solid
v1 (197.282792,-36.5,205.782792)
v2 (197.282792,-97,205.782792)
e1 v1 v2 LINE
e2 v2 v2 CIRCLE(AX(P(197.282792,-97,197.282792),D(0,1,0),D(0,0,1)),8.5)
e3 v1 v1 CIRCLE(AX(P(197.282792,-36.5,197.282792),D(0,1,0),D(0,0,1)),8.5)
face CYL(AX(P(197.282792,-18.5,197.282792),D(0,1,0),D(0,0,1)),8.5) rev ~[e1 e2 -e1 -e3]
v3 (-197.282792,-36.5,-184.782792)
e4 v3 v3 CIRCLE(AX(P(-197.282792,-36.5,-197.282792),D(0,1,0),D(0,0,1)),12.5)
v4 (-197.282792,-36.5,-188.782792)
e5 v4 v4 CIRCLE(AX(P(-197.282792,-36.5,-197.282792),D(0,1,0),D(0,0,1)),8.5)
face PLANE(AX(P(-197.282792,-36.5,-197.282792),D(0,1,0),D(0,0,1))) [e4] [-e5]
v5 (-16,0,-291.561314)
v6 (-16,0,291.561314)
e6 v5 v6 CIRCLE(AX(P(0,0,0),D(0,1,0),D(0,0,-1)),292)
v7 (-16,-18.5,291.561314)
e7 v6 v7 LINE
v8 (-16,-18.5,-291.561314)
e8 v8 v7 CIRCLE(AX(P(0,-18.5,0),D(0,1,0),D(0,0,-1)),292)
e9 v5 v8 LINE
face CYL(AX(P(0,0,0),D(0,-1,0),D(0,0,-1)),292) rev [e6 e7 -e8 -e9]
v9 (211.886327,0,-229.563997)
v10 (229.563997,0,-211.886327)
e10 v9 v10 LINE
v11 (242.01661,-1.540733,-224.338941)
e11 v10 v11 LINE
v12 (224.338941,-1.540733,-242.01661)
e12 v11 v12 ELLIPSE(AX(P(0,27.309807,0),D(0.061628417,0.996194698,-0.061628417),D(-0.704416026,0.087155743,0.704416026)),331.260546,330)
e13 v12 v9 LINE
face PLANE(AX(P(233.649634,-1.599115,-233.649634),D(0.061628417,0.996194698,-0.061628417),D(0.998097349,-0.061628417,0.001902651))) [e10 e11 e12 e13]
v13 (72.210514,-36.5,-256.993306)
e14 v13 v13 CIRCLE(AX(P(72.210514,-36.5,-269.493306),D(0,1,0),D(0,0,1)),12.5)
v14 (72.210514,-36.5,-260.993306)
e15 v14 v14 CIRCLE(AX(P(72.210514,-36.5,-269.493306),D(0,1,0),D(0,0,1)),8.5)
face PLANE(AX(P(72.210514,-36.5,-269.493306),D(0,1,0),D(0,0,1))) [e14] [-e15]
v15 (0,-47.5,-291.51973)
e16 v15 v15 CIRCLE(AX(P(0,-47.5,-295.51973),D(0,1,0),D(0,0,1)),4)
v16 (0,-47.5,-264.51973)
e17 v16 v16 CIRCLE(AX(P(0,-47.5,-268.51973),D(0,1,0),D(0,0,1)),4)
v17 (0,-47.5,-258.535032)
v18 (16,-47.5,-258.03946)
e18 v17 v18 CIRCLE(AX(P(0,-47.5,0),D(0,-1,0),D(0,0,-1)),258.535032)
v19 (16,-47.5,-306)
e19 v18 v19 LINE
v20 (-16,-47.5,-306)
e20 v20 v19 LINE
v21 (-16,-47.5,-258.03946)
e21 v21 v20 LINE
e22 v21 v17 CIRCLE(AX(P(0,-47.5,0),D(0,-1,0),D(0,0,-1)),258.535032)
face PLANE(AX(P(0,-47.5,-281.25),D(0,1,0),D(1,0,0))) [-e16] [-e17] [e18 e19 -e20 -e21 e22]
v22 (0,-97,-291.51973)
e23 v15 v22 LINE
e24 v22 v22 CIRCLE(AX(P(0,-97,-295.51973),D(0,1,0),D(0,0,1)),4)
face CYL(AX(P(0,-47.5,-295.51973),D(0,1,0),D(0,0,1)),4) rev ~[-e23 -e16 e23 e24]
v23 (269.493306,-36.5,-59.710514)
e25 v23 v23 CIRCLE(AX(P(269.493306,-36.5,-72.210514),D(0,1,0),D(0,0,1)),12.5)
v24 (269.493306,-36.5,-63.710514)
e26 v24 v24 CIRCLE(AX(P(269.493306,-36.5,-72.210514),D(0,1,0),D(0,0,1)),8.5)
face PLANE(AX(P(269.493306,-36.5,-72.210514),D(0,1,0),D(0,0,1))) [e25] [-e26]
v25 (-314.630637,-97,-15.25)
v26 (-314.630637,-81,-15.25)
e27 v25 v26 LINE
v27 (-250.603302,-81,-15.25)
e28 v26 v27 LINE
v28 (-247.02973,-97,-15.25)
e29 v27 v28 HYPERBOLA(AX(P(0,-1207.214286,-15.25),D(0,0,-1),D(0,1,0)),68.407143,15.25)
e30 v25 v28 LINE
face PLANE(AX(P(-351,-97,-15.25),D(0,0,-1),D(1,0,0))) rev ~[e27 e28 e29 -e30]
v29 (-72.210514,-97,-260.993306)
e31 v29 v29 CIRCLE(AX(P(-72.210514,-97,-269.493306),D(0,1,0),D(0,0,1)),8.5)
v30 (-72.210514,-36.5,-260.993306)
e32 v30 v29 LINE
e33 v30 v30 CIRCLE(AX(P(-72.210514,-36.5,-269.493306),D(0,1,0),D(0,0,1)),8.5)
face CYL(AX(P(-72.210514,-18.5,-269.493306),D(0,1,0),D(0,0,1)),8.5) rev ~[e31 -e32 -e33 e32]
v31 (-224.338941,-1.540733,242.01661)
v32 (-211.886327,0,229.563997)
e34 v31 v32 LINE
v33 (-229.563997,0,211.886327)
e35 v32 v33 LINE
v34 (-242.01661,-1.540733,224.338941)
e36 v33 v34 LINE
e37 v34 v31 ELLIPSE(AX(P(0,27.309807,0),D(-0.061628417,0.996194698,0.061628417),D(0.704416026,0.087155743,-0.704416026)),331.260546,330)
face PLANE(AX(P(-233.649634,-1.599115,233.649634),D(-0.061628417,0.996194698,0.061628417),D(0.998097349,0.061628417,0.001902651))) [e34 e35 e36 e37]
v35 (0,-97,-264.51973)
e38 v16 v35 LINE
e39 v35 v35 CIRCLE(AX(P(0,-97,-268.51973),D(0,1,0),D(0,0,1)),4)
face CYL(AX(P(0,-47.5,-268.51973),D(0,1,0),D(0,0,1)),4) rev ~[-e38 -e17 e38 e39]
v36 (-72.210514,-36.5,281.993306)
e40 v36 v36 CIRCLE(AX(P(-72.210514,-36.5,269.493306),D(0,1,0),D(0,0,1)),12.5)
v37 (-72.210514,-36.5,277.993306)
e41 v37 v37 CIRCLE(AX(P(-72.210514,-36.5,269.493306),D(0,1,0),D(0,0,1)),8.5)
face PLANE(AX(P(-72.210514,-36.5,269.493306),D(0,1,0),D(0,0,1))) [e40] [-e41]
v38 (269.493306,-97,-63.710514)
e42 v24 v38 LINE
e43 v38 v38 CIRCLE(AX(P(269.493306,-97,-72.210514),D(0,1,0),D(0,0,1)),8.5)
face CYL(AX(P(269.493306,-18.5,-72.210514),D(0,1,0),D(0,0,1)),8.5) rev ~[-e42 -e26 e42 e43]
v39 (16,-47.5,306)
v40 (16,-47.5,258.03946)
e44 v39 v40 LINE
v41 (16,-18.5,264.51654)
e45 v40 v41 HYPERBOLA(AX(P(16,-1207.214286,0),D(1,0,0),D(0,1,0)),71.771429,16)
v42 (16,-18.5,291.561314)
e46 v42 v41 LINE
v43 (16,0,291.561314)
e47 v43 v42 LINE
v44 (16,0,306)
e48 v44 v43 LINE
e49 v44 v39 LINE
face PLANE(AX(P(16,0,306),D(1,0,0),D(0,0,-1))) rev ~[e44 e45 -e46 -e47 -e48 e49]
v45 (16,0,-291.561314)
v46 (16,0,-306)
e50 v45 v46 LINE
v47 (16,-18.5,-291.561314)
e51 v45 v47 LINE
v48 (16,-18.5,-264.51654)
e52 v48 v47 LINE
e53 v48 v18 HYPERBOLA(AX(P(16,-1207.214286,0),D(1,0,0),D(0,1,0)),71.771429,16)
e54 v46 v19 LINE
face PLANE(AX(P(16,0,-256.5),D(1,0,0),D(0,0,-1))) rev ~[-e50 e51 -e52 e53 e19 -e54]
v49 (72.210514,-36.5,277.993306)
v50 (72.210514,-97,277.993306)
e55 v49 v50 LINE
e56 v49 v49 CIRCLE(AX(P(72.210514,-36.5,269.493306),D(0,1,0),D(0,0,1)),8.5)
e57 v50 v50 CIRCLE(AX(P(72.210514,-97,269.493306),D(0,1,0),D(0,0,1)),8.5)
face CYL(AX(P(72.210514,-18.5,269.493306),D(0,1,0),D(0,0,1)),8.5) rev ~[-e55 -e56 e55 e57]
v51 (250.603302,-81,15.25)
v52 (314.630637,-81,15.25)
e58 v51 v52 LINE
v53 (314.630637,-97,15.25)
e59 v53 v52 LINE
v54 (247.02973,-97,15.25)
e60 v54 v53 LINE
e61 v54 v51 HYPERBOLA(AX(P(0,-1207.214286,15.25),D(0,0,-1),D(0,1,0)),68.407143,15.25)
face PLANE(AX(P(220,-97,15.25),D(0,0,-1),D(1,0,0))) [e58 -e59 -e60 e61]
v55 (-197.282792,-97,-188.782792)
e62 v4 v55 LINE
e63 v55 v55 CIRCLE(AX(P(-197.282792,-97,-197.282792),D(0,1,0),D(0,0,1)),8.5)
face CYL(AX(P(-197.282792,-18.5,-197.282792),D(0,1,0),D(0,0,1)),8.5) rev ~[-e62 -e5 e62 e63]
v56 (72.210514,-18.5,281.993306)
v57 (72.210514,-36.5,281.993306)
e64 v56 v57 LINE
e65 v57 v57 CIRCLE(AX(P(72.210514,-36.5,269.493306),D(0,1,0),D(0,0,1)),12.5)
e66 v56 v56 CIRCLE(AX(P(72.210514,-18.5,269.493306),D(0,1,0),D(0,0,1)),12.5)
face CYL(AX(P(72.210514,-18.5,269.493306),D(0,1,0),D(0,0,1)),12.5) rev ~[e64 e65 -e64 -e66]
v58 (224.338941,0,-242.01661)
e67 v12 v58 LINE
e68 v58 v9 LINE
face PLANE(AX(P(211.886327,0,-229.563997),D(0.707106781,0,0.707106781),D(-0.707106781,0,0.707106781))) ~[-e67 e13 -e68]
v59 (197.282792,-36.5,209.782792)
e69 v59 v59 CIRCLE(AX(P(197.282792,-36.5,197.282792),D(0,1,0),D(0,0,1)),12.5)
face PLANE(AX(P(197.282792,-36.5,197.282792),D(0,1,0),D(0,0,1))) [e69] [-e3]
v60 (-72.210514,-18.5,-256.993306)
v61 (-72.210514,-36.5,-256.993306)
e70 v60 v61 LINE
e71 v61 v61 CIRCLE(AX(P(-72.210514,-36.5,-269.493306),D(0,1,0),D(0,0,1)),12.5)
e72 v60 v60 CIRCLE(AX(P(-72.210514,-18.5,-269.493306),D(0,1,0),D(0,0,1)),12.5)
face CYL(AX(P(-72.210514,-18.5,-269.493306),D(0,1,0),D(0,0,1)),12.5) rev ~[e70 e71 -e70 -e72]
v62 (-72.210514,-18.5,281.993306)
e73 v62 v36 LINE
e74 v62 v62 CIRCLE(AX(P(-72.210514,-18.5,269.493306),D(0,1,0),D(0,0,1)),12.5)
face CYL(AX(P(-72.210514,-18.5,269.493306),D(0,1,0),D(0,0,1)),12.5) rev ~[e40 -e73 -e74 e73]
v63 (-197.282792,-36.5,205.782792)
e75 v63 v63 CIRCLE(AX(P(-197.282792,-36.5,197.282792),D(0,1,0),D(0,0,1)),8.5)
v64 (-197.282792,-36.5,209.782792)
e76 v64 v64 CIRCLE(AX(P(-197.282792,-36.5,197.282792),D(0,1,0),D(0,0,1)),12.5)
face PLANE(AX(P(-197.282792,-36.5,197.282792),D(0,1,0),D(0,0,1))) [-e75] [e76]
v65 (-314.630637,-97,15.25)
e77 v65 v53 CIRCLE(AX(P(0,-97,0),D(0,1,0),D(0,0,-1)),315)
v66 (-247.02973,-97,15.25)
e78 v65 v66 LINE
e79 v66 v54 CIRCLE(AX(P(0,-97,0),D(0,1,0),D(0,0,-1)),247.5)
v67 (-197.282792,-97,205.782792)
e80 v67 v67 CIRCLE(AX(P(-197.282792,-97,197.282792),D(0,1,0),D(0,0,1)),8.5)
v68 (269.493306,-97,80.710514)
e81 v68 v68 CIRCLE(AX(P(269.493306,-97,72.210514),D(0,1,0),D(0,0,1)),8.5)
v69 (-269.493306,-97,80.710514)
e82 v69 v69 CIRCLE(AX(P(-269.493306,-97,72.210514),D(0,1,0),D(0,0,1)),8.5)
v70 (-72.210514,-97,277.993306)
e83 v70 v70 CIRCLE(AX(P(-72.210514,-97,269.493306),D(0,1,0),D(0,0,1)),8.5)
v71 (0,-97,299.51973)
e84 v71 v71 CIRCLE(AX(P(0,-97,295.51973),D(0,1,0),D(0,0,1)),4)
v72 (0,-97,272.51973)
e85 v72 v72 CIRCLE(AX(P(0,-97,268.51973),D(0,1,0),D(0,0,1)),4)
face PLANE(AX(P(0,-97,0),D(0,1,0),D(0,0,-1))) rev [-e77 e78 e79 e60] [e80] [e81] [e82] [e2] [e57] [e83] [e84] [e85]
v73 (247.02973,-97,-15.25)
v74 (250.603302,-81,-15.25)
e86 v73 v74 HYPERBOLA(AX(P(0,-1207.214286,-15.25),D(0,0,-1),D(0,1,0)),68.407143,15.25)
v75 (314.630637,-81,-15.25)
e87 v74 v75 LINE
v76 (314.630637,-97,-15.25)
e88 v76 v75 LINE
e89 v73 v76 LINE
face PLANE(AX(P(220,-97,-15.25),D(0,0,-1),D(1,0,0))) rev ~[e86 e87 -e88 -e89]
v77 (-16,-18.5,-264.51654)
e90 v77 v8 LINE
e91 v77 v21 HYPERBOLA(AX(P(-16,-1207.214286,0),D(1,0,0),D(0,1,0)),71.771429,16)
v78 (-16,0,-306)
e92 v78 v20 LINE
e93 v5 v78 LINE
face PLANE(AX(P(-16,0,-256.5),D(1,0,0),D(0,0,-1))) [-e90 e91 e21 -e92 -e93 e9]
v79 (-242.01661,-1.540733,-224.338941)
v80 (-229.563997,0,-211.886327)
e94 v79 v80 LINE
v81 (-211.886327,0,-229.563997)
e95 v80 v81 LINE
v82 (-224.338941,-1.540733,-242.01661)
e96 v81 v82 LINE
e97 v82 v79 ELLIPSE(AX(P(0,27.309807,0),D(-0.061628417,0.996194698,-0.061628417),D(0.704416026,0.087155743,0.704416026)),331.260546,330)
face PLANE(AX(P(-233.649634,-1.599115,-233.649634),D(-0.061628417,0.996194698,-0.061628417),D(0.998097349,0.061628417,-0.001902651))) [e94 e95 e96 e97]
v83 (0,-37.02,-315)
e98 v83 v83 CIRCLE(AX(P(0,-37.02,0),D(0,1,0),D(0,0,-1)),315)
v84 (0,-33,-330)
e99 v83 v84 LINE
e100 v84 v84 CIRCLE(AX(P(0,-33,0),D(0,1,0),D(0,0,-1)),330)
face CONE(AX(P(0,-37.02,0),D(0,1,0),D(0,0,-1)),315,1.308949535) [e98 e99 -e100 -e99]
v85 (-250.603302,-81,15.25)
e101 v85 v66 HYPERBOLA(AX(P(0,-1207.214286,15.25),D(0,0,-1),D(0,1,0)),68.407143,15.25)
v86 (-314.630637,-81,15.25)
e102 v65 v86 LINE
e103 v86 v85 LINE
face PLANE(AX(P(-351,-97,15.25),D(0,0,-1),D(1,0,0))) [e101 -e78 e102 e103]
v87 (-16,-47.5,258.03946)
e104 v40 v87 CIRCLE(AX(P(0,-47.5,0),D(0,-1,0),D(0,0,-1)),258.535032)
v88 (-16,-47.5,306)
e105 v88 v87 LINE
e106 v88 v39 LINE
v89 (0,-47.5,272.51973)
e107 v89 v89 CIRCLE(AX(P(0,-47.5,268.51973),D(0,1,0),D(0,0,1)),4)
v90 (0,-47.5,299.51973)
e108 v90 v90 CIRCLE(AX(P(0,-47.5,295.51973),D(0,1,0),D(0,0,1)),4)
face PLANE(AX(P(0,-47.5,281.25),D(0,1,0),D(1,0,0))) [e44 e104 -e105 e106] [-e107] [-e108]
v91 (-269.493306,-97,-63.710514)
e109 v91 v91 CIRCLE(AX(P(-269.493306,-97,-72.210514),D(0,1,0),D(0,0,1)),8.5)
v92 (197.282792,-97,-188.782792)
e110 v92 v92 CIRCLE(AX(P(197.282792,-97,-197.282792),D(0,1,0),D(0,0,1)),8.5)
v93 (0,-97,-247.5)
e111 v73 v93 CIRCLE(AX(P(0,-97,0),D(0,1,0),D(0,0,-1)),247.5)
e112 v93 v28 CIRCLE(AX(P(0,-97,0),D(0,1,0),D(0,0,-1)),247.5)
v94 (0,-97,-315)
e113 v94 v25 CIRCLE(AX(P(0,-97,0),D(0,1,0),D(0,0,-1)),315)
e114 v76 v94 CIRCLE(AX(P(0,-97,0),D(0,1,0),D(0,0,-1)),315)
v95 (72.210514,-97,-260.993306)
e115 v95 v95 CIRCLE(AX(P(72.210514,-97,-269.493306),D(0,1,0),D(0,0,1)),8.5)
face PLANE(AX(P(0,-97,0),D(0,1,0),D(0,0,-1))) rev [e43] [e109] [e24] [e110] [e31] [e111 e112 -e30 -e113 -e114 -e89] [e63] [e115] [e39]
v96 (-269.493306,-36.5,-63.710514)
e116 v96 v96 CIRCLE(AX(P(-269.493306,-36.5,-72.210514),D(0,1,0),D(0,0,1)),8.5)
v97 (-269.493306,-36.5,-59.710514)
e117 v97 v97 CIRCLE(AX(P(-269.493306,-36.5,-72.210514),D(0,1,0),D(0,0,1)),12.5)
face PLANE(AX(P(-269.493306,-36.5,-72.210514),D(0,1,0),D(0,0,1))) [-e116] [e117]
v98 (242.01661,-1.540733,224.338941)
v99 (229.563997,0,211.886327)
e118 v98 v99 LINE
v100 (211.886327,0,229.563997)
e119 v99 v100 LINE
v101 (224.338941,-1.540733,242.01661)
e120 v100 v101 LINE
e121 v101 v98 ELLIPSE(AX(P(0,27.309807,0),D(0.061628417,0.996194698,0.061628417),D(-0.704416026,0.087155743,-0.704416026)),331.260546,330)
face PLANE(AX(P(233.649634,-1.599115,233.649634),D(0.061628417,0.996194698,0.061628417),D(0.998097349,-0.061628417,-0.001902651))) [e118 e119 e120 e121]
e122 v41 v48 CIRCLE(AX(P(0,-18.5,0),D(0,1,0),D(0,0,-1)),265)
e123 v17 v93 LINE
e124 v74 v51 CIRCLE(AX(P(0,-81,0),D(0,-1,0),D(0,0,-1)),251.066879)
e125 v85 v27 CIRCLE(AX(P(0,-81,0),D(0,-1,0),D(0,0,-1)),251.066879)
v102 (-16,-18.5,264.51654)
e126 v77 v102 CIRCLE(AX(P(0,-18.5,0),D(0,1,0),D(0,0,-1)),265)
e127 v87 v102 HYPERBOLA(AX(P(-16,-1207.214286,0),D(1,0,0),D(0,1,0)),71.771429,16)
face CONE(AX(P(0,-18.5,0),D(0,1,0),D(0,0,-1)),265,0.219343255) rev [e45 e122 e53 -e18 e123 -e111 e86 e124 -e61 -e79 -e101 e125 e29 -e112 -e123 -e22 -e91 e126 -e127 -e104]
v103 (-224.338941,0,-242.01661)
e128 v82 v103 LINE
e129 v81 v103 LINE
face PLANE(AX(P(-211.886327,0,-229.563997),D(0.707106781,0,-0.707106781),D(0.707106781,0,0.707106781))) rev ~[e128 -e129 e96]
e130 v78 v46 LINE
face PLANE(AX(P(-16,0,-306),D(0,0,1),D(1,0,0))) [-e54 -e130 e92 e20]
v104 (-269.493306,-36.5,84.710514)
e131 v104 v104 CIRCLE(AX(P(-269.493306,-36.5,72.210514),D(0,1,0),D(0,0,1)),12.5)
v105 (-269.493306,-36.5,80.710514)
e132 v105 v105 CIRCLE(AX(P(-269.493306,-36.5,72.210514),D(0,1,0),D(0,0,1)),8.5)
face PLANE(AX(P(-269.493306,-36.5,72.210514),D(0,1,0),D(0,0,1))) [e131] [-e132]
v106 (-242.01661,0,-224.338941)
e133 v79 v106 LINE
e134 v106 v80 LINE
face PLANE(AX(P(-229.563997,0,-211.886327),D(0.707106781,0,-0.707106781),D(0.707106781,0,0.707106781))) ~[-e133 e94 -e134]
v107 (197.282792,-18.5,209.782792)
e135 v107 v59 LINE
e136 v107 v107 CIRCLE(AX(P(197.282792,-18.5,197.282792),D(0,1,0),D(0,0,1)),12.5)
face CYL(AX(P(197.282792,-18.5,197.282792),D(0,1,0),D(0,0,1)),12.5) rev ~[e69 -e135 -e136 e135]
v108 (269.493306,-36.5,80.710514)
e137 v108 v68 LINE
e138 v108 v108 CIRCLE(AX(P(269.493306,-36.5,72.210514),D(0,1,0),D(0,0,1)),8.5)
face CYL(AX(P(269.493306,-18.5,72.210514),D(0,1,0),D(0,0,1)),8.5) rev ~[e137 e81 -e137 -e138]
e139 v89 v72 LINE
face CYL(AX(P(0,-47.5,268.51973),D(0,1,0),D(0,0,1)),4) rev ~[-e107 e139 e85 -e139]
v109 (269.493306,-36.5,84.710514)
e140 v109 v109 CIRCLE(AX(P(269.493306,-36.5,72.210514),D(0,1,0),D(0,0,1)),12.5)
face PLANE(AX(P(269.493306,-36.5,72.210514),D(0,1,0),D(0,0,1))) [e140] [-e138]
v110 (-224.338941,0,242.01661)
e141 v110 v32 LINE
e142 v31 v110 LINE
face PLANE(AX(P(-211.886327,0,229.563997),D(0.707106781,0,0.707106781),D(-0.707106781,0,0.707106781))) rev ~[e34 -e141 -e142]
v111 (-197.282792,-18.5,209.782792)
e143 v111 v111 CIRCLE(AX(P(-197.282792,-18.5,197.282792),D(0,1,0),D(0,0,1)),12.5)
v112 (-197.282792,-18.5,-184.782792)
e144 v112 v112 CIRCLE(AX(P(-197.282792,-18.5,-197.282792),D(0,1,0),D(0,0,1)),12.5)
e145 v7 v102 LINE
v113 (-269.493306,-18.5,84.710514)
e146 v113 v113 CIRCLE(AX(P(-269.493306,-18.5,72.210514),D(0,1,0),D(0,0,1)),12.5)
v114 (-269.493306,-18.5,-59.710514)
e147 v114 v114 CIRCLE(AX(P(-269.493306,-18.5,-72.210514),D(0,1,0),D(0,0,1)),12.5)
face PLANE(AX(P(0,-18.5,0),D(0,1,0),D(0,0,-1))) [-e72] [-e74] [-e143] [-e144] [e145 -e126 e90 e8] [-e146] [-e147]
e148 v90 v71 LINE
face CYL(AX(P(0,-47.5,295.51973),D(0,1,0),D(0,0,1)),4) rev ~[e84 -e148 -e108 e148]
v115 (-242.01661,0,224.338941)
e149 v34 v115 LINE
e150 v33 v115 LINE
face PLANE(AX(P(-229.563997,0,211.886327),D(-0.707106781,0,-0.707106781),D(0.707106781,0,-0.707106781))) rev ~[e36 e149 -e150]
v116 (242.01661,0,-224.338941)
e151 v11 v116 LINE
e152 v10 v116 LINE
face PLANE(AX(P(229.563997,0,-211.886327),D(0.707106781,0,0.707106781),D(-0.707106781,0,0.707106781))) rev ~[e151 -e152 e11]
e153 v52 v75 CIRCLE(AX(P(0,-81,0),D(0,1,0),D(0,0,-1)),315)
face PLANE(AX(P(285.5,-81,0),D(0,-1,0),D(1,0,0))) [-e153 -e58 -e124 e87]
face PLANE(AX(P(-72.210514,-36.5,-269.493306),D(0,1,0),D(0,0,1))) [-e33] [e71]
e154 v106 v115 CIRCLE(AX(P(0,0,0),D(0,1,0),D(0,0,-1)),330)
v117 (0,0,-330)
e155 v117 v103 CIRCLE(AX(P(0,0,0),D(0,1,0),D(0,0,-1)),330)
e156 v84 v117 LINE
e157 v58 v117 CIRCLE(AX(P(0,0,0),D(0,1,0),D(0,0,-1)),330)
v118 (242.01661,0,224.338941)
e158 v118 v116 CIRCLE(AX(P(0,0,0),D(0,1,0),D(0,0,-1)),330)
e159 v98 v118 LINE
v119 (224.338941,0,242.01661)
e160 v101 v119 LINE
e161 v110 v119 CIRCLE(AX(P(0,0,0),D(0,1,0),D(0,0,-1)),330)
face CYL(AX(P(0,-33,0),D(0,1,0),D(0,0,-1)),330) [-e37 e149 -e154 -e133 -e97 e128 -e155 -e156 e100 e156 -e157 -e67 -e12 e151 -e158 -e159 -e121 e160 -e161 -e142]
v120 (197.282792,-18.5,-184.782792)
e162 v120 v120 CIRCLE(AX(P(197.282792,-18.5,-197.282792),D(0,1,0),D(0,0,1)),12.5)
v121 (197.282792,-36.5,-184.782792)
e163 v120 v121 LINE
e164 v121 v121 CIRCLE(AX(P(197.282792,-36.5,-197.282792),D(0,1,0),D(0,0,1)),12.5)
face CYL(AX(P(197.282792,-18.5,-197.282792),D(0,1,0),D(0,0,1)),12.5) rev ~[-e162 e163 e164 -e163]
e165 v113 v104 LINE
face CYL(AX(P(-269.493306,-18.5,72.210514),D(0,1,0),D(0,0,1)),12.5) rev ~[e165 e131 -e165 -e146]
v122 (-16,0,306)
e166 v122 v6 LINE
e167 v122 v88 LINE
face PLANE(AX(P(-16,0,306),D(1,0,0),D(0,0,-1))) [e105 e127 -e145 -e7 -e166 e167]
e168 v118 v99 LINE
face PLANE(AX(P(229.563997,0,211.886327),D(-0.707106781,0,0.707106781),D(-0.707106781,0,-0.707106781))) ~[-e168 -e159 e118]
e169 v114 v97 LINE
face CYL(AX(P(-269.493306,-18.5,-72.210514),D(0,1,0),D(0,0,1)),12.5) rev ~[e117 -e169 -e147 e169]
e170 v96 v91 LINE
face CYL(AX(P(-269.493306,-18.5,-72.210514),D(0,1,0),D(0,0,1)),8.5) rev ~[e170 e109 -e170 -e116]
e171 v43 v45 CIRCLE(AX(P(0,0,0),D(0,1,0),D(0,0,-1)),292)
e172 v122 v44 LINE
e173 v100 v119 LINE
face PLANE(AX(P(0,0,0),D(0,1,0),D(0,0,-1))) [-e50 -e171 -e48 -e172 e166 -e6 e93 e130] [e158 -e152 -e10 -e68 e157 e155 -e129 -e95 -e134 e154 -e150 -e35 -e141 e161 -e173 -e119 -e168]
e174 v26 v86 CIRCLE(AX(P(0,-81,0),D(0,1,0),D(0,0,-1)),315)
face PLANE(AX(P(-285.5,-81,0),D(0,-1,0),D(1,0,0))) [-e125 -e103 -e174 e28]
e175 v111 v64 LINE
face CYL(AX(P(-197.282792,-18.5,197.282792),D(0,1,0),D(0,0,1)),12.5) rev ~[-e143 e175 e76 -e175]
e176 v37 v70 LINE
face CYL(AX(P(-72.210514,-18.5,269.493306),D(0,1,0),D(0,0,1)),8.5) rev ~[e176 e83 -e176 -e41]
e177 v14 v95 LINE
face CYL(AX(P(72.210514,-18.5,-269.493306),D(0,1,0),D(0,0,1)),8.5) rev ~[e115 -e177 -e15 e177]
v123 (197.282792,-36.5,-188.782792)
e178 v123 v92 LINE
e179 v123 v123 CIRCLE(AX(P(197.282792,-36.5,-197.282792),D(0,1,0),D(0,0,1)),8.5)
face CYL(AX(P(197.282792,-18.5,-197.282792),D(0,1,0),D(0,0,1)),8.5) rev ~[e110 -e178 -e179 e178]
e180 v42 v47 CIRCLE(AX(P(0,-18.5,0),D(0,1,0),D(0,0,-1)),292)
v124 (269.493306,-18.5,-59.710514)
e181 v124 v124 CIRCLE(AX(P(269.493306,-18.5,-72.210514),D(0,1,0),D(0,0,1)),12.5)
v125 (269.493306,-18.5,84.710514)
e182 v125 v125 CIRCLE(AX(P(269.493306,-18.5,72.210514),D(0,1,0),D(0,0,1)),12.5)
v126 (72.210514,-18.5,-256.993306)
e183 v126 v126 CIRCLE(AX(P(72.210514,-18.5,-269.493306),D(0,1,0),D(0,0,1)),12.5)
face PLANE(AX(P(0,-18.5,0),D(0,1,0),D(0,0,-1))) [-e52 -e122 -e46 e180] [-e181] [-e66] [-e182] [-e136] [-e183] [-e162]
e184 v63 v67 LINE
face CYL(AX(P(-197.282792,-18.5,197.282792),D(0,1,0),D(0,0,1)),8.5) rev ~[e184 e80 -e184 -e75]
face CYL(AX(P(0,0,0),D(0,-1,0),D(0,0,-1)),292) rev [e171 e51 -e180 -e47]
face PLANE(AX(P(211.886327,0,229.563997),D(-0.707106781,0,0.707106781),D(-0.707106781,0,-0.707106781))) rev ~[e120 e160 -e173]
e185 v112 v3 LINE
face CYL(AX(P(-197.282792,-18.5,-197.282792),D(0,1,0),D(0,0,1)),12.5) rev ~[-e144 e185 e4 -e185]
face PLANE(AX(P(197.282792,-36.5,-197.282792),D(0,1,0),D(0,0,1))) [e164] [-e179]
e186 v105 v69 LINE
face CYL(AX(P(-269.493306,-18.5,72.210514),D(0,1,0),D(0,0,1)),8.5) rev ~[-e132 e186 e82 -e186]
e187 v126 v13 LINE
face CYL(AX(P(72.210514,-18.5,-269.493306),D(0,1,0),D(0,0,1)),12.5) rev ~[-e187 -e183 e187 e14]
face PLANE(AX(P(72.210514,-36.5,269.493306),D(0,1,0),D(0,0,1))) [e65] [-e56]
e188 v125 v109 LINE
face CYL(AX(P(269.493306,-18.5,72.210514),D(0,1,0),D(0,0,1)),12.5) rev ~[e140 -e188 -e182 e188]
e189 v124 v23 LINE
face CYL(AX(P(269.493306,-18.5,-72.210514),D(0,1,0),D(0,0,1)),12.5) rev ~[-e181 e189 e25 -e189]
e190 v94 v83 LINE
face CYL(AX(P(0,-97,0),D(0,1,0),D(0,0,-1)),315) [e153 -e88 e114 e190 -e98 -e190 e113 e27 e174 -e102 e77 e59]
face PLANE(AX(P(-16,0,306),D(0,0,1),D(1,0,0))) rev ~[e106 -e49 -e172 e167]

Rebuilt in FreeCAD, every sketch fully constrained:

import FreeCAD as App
import Part
import Sketcher

V = App.Vector
Q = App.Units.Quantity

doc = App.newDocument("Part")
body = doc.addObject("PartDesign::Body", "Body")

sketch1 = doc.addObject("Sketcher::SketchObject", "Sketch")
body.addObject(sketch1)
sketch1.AttachmentSupport = (doc.XY_Plane, [""])
sketch1.MapMode = "FlatFace"
sketch1.addGeometry([
    Part.LineSegment(V(-292, 0, 0), V(-330, 0, 0)),
    Part.LineSegment(V(-330, 0, 0), V(-330, -33, 0)),
    Part.LineSegment(V(-330, -33, 0), V(-315, -37, 0)),
    Part.LineSegment(V(-315, -37, 0), V(-315, -97, 0)),
    Part.LineSegment(V(-315, -97, 0), V(-248, -97, 0)),
    Part.LineSegment(V(-248, -97, 0), V(-265, -18, 0)),
    Part.LineSegment(V(-265, -18, 0), V(-292, -18, 0)),
    Part.LineSegment(V(-292, -18, 0), V(-292, 0, 0)),
], False)
sketch1.addConstraint([
    Sketcher.Constraint("Coincident", 0, 2, 1, 1),
    Sketcher.Constraint("Coincident", 1, 2, 2, 1),
    Sketcher.Constraint("Coincident", 2, 2, 3, 1),
    Sketcher.Constraint("Coincident", 3, 2, 4, 1),
    Sketcher.Constraint("Coincident", 4, 2, 5, 1),
    Sketcher.Constraint("Coincident", 5, 2, 6, 1),
    Sketcher.Constraint("Coincident", 6, 2, 7, 1),
    Sketcher.Constraint("Coincident", 7, 2, 0, 1),
    Sketcher.Constraint("Horizontal", 0),
    Sketcher.Constraint("Vertical", 1),
    Sketcher.Constraint("Vertical", 3),
    Sketcher.Constraint("Horizontal", 4),
    Sketcher.Constraint("Horizontal", 6),
    Sketcher.Constraint("Vertical", 7),
    Sketcher.Constraint("PointOnObject", 0, 2, -1),
    Sketcher.Constraint("DistanceX", 0, 2, 0, 1, Q("38 mm")),
    Sketcher.Constraint("DistanceX", 6, 2, 6, 1, Q("27 mm")),
    Sketcher.Constraint("DistanceY", 1, 2, 1, 1, Q("33 mm")),
    Sketcher.Constraint("DistanceX", 4, 1, 4, 2, Q("67.5 mm")),
    Sketcher.Constraint("DistanceY", 7, 1, 7, 2, Q("18.5 mm")),
    Sketcher.Constraint("DistanceX", 0, 2, -1, 1, Q("330 mm")),
    Sketcher.Constraint("DistanceX", 2, 2, -1, 1, Q("315 mm")),
    Sketcher.Constraint("DistanceY", 3, 2, -1, 1, Q("97 mm")),
    Sketcher.Constraint("DistanceY", 3, 2, 3, 1, Q("59.98 mm")),
])
revolution = doc.addObject("PartDesign::Revolution", "Revolution")
body.addObject(revolution)
revolution.Profile = sketch1
revolution.ReferenceAxis = (sketch1, ["V_Axis"])
revolution.Angle = 360

sketch2 = doc.addObject("Sketcher::SketchObject", "Sketch001")
body.addObject(sketch2)
sketch2.AttachmentSupport = (doc.XZ_Plane, [""])
sketch2.MapMode = "FlatFace"
sketch2.AttachmentOffset = App.Placement(V(0, 0, 18.5), App.Rotation())
sketch2.addGeometry(Part.Circle(V(-72, -269, 0), V(0, 0, 1), 8), False)
sketch2.addConstraint([
    Sketcher.Constraint("Diameter", 0, Q("17 mm")),
    Sketcher.Constraint("DistanceX", 0, 3, -1, 1, Q("72.210514 mm")),
    Sketcher.Constraint("DistanceY", 0, 3, -1, 1, Q("269.493306 mm")),
])
pocket1 = doc.addObject("PartDesign::Pocket", "Pocket")
body.addObject(pocket1)
pocket1.Profile = sketch2
pocket1.Type = "UpToFirst"
pocket1.Reversed = True

sketch3 = doc.addObject("Sketcher::SketchObject", "Sketch002")
body.addObject(sketch3)
sketch3.AttachmentSupport = (doc.XZ_Plane, [""])
sketch3.MapMode = "FlatFace"
sketch3.AttachmentOffset = App.Placement(V(0, 0, 18.5), App.Rotation())
sketch3.addGeometry(Part.Circle(V(72, -269, 0), V(0, 0, 1), 8), False)
sketch3.addConstraint([
    Sketcher.Constraint("Diameter", 0, Q("17 mm")),
    Sketcher.Constraint("DistanceX", -1, 1, 0, 3, Q("72.210514 mm")),
    Sketcher.Constraint("DistanceY", 0, 3, -1, 1, Q("269.493306 mm")),
])
pocket2 = doc.addObject("PartDesign::Pocket", "Pocket001")
body.addObject(pocket2)
pocket2.Profile = sketch3
pocket2.Type = "UpToFirst"
pocket2.Reversed = True

sketch4 = doc.addObject("Sketcher::SketchObject", "Sketch003")
body.addObject(sketch4)
sketch4.AttachmentSupport = (doc.XZ_Plane, [""])
sketch4.MapMode = "FlatFace"
sketch4.AttachmentOffset = App.Placement(V(0, 0, 18.5), App.Rotation())
sketch4.addGeometry(Part.Circle(V(197, -197, 0), V(0, 0, 1), 8), False)
sketch4.addConstraint([
    Sketcher.Constraint("Diameter", 0, Q("17 mm")),
    Sketcher.Constraint("DistanceX", -1, 1, 0, 3, Q("197.282792 mm")),
    Sketcher.Constraint("DistanceY", 0, 3, -1, 1, Q("197.282792 mm")),
])
pocket3 = doc.addObject("PartDesign::Pocket", "Pocket002")
body.addObject(pocket3)
pocket3.Profile = sketch4
pocket3.Type = "UpToFirst"
pocket3.Reversed = True

sketch5 = doc.addObject("Sketcher::SketchObject", "Sketch004")
body.addObject(sketch5)
sketch5.AttachmentSupport = (doc.XZ_Plane, [""])
sketch5.MapMode = "FlatFace"
sketch5.AttachmentOffset = App.Placement(V(0, 0, 18.5), App.Rotation())
sketch5.addGeometry(Part.Circle(V(269, -72, 0), V(0, 0, 1), 8), False)
sketch5.addConstraint([
    Sketcher.Constraint("Diameter", 0, Q("17 mm")),
    Sketcher.Constraint("DistanceX", -1, 1, 0, 3, Q("269.493306 mm")),
    Sketcher.Constraint("DistanceY", 0, 3, -1, 1, Q("72.210514 mm")),
])
pocket4 = doc.addObject("PartDesign::Pocket", "Pocket003")
body.addObject(pocket4)
pocket4.Profile = sketch5
pocket4.Type = "UpToFirst"
pocket4.Reversed = True

sketch6 = doc.addObject("Sketcher::SketchObject", "Sketch005")
body.addObject(sketch6)
sketch6.AttachmentSupport = (doc.XZ_Plane, [""])
sketch6.MapMode = "FlatFace"
sketch6.AttachmentOffset = App.Placement(V(0, 0, 18.5), App.Rotation())
sketch6.addGeometry(Part.Circle(V(269, 72, 0), V(0, 0, 1), 8), False)
sketch6.addConstraint([
    Sketcher.Constraint("Diameter", 0, Q("17 mm")),
    Sketcher.Constraint("DistanceX", -1, 1, 0, 3, Q("269.493306 mm")),
    Sketcher.Constraint("DistanceY", -1, 1, 0, 3, Q("72.210514 mm")),
])
pocket5 = doc.addObject("PartDesign::Pocket", "Pocket004")
body.addObject(pocket5)
pocket5.Profile = sketch6
pocket5.Type = "UpToFirst"
pocket5.Reversed = True

sketch7 = doc.addObject("Sketcher::SketchObject", "Sketch006")
body.addObject(sketch7)
sketch7.AttachmentSupport = (doc.XZ_Plane, [""])
sketch7.MapMode = "FlatFace"
sketch7.AttachmentOffset = App.Placement(V(0, 0, 18.5), App.Rotation())
sketch7.addGeometry(Part.Circle(V(197, 197, 0), V(0, 0, 1), 8), False)
sketch7.addConstraint([
    Sketcher.Constraint("Diameter", 0, Q("17 mm")),
    Sketcher.Constraint("DistanceX", -1, 1, 0, 3, Q("197.282792 mm")),
    Sketcher.Constraint("DistanceY", -1, 1, 0, 3, Q("197.282792 mm")),
])
pocket6 = doc.addObject("PartDesign::Pocket", "Pocket005")
body.addObject(pocket6)
pocket6.Profile = sketch7
pocket6.Type = "UpToFirst"
pocket6.Reversed = True

sketch8 = doc.addObject("Sketcher::SketchObject", "Sketch007")
body.addObject(sketch8)
sketch8.AttachmentSupport = (doc.XZ_Plane, [""])
sketch8.MapMode = "FlatFace"
sketch8.AttachmentOffset = App.Placement(V(0, 0, 18.5), App.Rotation())
sketch8.addGeometry(Part.Circle(V(72, 269, 0), V(0, 0, 1), 8), False)
sketch8.addConstraint([
    Sketcher.Constraint("Diameter", 0, Q("17 mm")),
    Sketcher.Constraint("DistanceX", -1, 1, 0, 3, Q("72.210514 mm")),
    Sketcher.Constraint("DistanceY", -1, 1, 0, 3, Q("269.493306 mm")),
])
pocket7 = doc.addObject("PartDesign::Pocket", "Pocket006")
body.addObject(pocket7)
pocket7.Profile = sketch8
pocket7.Type = "UpToFirst"
pocket7.Reversed = True

sketch9 = doc.addObject("Sketcher::SketchObject", "Sketch008")
body.addObject(sketch9)
sketch9.AttachmentSupport = (doc.XZ_Plane, [""])
sketch9.MapMode = "FlatFace"
sketch9.AttachmentOffset = App.Placement(V(0, 0, 18.5), App.Rotation())
sketch9.addGeometry(Part.Circle(V(-72, 269, 0), V(0, 0, 1), 8), False)
sketch9.addConstraint([
    Sketcher.Constraint("Diameter", 0, Q("17 mm")),
    Sketcher.Constraint("DistanceX", 0, 3, -1, 1, Q("72.210514 mm")),
    Sketcher.Constraint("DistanceY", -1, 1, 0, 3, Q("269.493306 mm")),
])
pocket8 = doc.addObject("PartDesign::Pocket", "Pocket007")
body.addObject(pocket8)
pocket8.Profile = sketch9
pocket8.Type = "UpToFirst"
pocket8.Reversed = True

sketch10 = doc.addObject("Sketcher::SketchObject", "Sketch009")
body.addObject(sketch10)
sketch10.AttachmentSupport = (doc.XZ_Plane, [""])
sketch10.MapMode = "FlatFace"
sketch10.AttachmentOffset = App.Placement(V(0, 0, 18.5), App.Rotation())
sketch10.addGeometry(Part.Circle(V(-197, 197, 0), V(0, 0, 1), 8), False)
sketch10.addConstraint([
    Sketcher.Constraint("Diameter", 0, Q("17 mm")),
    Sketcher.Constraint("DistanceX", 0, 3, -1, 1, Q("197.282792 mm")),
    Sketcher.Constraint("DistanceY", -1, 1, 0, 3, Q("197.282792 mm")),
])
pocket9 = doc.addObject("PartDesign::Pocket", "Pocket008")
body.addObject(pocket9)
pocket9.Profile = sketch10
pocket9.Type = "UpToFirst"
pocket9.Reversed = True

sketch11 = doc.addObject("Sketcher::SketchObject", "Sketch010")
body.addObject(sketch11)
sketch11.AttachmentSupport = (doc.XZ_Plane, [""])
sketch11.MapMode = "FlatFace"
sketch11.AttachmentOffset = App.Placement(V(0, 0, 18.5), App.Rotation())
sketch11.addGeometry(Part.Circle(V(-269, 72, 0), V(0, 0, 1), 8), False)
sketch11.addConstraint([
    Sketcher.Constraint("Diameter", 0, Q("17 mm")),
    Sketcher.Constraint("DistanceX", 0, 3, -1, 1, Q("269.493306 mm")),
    Sketcher.Constraint("DistanceY", -1, 1, 0, 3, Q("72.210514 mm")),
])
pocket10 = doc.addObject("PartDesign::Pocket", "Pocket009")
body.addObject(pocket10)
pocket10.Profile = sketch11
pocket10.Type = "UpToFirst"
pocket10.Reversed = True

sketch12 = doc.addObject("Sketcher::SketchObject", "Sketch011")
body.addObject(sketch12)
sketch12.AttachmentSupport = (doc.XZ_Plane, [""])
sketch12.MapMode = "FlatFace"
sketch12.AttachmentOffset = App.Placement(V(0, 0, 18.5), App.Rotation())
sketch12.addGeometry(Part.Circle(V(-269, -72, 0), V(0, 0, 1), 8), False)
sketch12.addConstraint([
    Sketcher.Constraint("Diameter", 0, Q("17 mm")),
    Sketcher.Constraint("DistanceX", 0, 3, -1, 1, Q("269.493306 mm")),
    Sketcher.Constraint("DistanceY", 0, 3, -1, 1, Q("72.210514 mm")),
])
pocket11 = doc.addObject("PartDesign::Pocket", "Pocket010")
body.addObject(pocket11)
pocket11.Profile = sketch12
pocket11.Type = "UpToFirst"
pocket11.Reversed = True

sketch13 = doc.addObject("Sketcher::SketchObject", "Sketch012")
body.addObject(sketch13)
sketch13.AttachmentSupport = (doc.XZ_Plane, [""])
sketch13.MapMode = "FlatFace"
sketch13.AttachmentOffset = App.Placement(V(0, 0, 18.5), App.Rotation())
sketch13.addGeometry(Part.Circle(V(-197, -197, 0), V(0, 0, 1), 8), False)
sketch13.addConstraint([
    Sketcher.Constraint("Diameter", 0, Q("17 mm")),
    Sketcher.Constraint("DistanceX", 0, 3, -1, 1, Q("197.282792 mm")),
    Sketcher.Constraint("DistanceY", 0, 3, -1, 1, Q("197.282792 mm")),
])
pocket12 = doc.addObject("PartDesign::Pocket", "Pocket011")
body.addObject(pocket12)
pocket12.Profile = sketch13
pocket12.Type = "UpToFirst"
pocket12.Reversed = True

sketch14 = doc.addObject("Sketcher::SketchObject", "Sketch013")
body.addObject(sketch14)
sketch14.AttachmentSupport = (doc.XZ_Plane, [""])
sketch14.MapMode = "FlatFace"
sketch14.AttachmentOffset = App.Placement(V(0, 0, 18.5), App.Rotation())
sketch14.addGeometry([
    Part.Circle(V(-72, -269, 0), V(0, 0, 1), 12),
    Part.Circle(V(72, -269, 0), V(0, 0, 1), 12),
    Part.Circle(V(197, -197, 0), V(0, 0, 1), 12),
    Part.Circle(V(269, -72, 0), V(0, 0, 1), 12),
    Part.Circle(V(269, 72, 0), V(0, 0, 1), 12),
    Part.Circle(V(197, 197, 0), V(0, 0, 1), 12),
    Part.Circle(V(72, 269, 0), V(0, 0, 1), 12),
    Part.Circle(V(-72, 269, 0), V(0, 0, 1), 12),
    Part.Circle(V(-197, 197, 0), V(0, 0, 1), 12),
    Part.Circle(V(-269, 72, 0), V(0, 0, 1), 12),
    Part.Circle(V(-269, -72, 0), V(0, 0, 1), 12),
    Part.Circle(V(-197, -197, 0), V(0, 0, 1), 12),
], False)
sketch14.addConstraint([
    Sketcher.Constraint("Equal", 0, 1),
    Sketcher.Constraint("Equal", 1, 2),
    Sketcher.Constraint("Equal", 2, 3),
    Sketcher.Constraint("Equal", 3, 4),
    Sketcher.Constraint("Equal", 4, 5),
    Sketcher.Constraint("Equal", 5, 6),
    Sketcher.Constraint("Equal", 6, 7),
    Sketcher.Constraint("Equal", 7, 8),
    Sketcher.Constraint("Equal", 8, 9),
    Sketcher.Constraint("Equal", 9, 10),
    Sketcher.Constraint("Equal", 10, 11),
    Sketcher.Constraint("Symmetric", 0, 3, 6, 3, -1, 1),
    Sketcher.Constraint("Symmetric", 1, 3, 7, 3, -1, 1),
    Sketcher.Constraint("Symmetric", 2, 3, 8, 3, -1, 1),
    Sketcher.Constraint("Symmetric", 3, 3, 9, 3, -1, 1),
    Sketcher.Constraint("Symmetric", 4, 3, 10, 3, -1, 1),
    Sketcher.Constraint("Symmetric", 5, 3, 11, 3, -1, 1),
    Sketcher.Constraint("Symmetric", 0, 3, 1, 3, -2),
    Sketcher.Constraint("Symmetric", 5, 3, 8, 3, -2),
    Sketcher.Constraint("Symmetric", 4, 3, 9, 3, -2),
    Sketcher.Constraint("Diameter", 0, Q("25 mm")),
    Sketcher.Constraint("DistanceX", -1, 1, 2, 3, Q("197.282792 mm")),
    Sketcher.Constraint("DistanceY", 2, 3, -1, 1, Q("197.282792 mm")),
    Sketcher.Constraint("DistanceX", 1, 3, 2, 3, Q("125.072278 mm")),
    Sketcher.Constraint("DistanceY", 2, 3, 3, 3, Q("125.072278 mm")),
    Sketcher.Constraint("DistanceX", 1, 3, 3, 3, Q("197.282792 mm")),
    Sketcher.Constraint("DistanceY", 1, 3, 3, 3, Q("197.282792 mm")),
])
pocket13 = doc.addObject("PartDesign::Pocket", "Pocket012")
body.addObject(pocket13)
pocket13.Profile = sketch14
pocket13.Length = 18
pocket13.Reversed = True

sketch15 = doc.addObject("Sketcher::SketchObject", "Sketch014")
body.addObject(sketch15)
sketch15.AttachmentSupport = (doc.XZ_Plane, [""])
sketch15.MapMode = "FlatFace"
sketch15.addGeometry([
    Part.LineSegment(V(-16, -306, 0), V(-16, -256, 0)),
    Part.LineSegment(V(-16, -256, 0), V(16, -256, 0)),
    Part.LineSegment(V(16, -256, 0), V(16, -306, 0)),
    Part.LineSegment(V(16, -306, 0), V(-16, -306, 0)),
    Part.LineSegment(V(-16, 256, 0), V(-16, 306, 0)),
    Part.LineSegment(V(-16, 306, 0), V(16, 306, 0)),
    Part.LineSegment(V(16, 306, 0), V(16, 256, 0)),
    Part.LineSegment(V(16, 256, 0), V(-16, 256, 0)),
], False)
sketch15.addConstraint([
    Sketcher.Constraint("Coincident", 0, 2, 1, 1),
    Sketcher.Constraint("Coincident", 1, 2, 2, 1),
    Sketcher.Constraint("Coincident", 2, 2, 3, 1),
    Sketcher.Constraint("Coincident", 3, 2, 0, 1),
    Sketcher.Constraint("Coincident", 4, 2, 5, 1),
    Sketcher.Constraint("Coincident", 5, 2, 6, 1),
    Sketcher.Constraint("Coincident", 6, 2, 7, 1),
    Sketcher.Constraint("Coincident", 7, 2, 4, 1),
    Sketcher.Constraint("Vertical", 0),
    Sketcher.Constraint("Horizontal", 1),
    Sketcher.Constraint("Vertical", 2),
    Sketcher.Constraint("Horizontal", 3),
    Sketcher.Constraint("Vertical", 4),
    Sketcher.Constraint("Horizontal", 5),
    Sketcher.Constraint("Vertical", 6),
    Sketcher.Constraint("Horizontal", 7),
    Sketcher.Constraint("Symmetric", 2, 2, 4, 2, -1, 1),
    Sketcher.Constraint("Symmetric", 0, 2, 6, 2, -1, 1),
    Sketcher.Constraint("Vertical", 3, 2, 4, 2),
    Sketcher.Constraint("DistanceX", 1, 1, 1, 2, Q("32 mm")),
    Sketcher.Constraint("DistanceY", 0, 1, 0, 2, Q("49.5 mm")),
    Sketcher.Constraint("DistanceY", 2, 2, -1, 1, Q("306 mm")),
])
pocket14 = doc.addObject("PartDesign::Pocket", "Pocket013")
body.addObject(pocket14)
pocket14.Profile = sketch15
pocket14.Length = 47.5
pocket14.Reversed = True

sketch16 = doc.addObject("Sketcher::SketchObject", "Sketch015")
body.addObject(sketch16)
sketch16.AttachmentSupport = (doc.XZ_Plane, [""])
sketch16.MapMode = "FlatFace"
sketch16.AttachmentOffset = App.Placement(V(0, 0, 47.5), App.Rotation())
sketch16.addGeometry(Part.Circle(V(0, -295.5, 0), V(0, 0, 1), 4), False)
sketch16.addConstraint([
    Sketcher.Constraint("PointOnObject", 0, 3, -2),
    Sketcher.Constraint("Diameter", 0, Q("8 mm")),
    Sketcher.Constraint("DistanceY", 0, 3, -1, 1, Q("295.51973 mm")),
])
pocket15 = doc.addObject("PartDesign::Pocket", "Pocket014")
body.addObject(pocket15)
pocket15.Profile = sketch16
pocket15.Type = "UpToFirst"
pocket15.Reversed = True

sketch17 = doc.addObject("Sketcher::SketchObject", "Sketch016")
body.addObject(sketch17)
sketch17.AttachmentSupport = (doc.XZ_Plane, [""])
sketch17.MapMode = "FlatFace"
sketch17.AttachmentOffset = App.Placement(V(0, 0, 47.5), App.Rotation())
sketch17.addGeometry(Part.Circle(V(0, -268.5, 0), V(0, 0, 1), 4), False)
sketch17.addConstraint([
    Sketcher.Constraint("PointOnObject", 0, 3, -2),
    Sketcher.Constraint("Diameter", 0, Q("8 mm")),
    Sketcher.Constraint("DistanceY", 0, 3, -1, 1, Q("268.51973 mm")),
])
pocket16 = doc.addObject("PartDesign::Pocket", "Pocket015")
body.addObject(pocket16)
pocket16.Profile = sketch17
pocket16.Type = "UpToFirst"
pocket16.Reversed = True

sketch18 = doc.addObject("Sketcher::SketchObject", "Sketch017")
body.addObject(sketch18)
sketch18.AttachmentSupport = (doc.XZ_Plane, [""])
sketch18.MapMode = "FlatFace"
sketch18.AttachmentOffset = App.Placement(V(0, 0, 47.5), App.Rotation())
sketch18.addGeometry(Part.Circle(V(0, 268.5, 0), V(0, 0, 1), 4), False)
sketch18.addConstraint([
    Sketcher.Constraint("PointOnObject", 0, 3, -2),
    Sketcher.Constraint("Diameter", 0, Q("8 mm")),
    Sketcher.Constraint("DistanceY", -1, 1, 0, 3, Q("268.51973 mm")),
])
pocket17 = doc.addObject("PartDesign::Pocket", "Pocket016")
body.addObject(pocket17)
pocket17.Profile = sketch18
pocket17.Type = "UpToFirst"
pocket17.Reversed = True

sketch19 = doc.addObject("Sketcher::SketchObject", "Sketch018")
body.addObject(sketch19)
sketch19.AttachmentSupport = (doc.XZ_Plane, [""])
sketch19.MapMode = "FlatFace"
sketch19.AttachmentOffset = App.Placement(V(0, 0, 47.5), App.Rotation())
sketch19.addGeometry(Part.Circle(V(0, 295.5, 0), V(0, 0, 1), 4), False)
sketch19.addConstraint([
    Sketcher.Constraint("PointOnObject", 0, 3, -2),
    Sketcher.Constraint("Diameter", 0, Q("8 mm")),
    Sketcher.Constraint("DistanceY", -1, 1, 0, 3, Q("295.51973 mm")),
])
pocket18 = doc.addObject("PartDesign::Pocket", "Pocket017")
body.addObject(pocket18)
pocket18.Profile = sketch19
pocket18.Type = "UpToFirst"
pocket18.Reversed = True

sketch20 = doc.addObject("Sketcher::SketchObject", "Sketch019")
body.addObject(sketch20)
sketch20.AttachmentSupport = (doc.XZ_Plane, [""])
sketch20.MapMode = "FlatFace"
sketch20.AttachmentOffset = App.Placement(V(0, 0, 97), App.Rotation())
sketch20.addGeometry([
    Part.LineSegment(V(220, 15, 0), V(220, -15, 0)),
    Part.LineSegment(V(220, -15, 0), V(351, -15, 0)),
    Part.LineSegment(V(351, -15, 0), V(351, 15, 0)),
    Part.LineSegment(V(351, 15, 0), V(220, 15, 0)),
    Part.LineSegment(V(-351, 15, 0), V(-351, -15, 0)),
    Part.LineSegment(V(-351, -15, 0), V(-220, -15, 0)),
    Part.LineSegment(V(-220, -15, 0), V(-220, 15, 0)),
    Part.LineSegment(V(-220, 15, 0), V(-351, 15, 0)),
], False)
sketch20.addConstraint([
    Sketcher.Constraint("Coincident", 0, 2, 1, 1),
    Sketcher.Constraint("Coincident", 1, 2, 2, 1),
    Sketcher.Constraint("Coincident", 2, 2, 3, 1),
    Sketcher.Constraint("Coincident", 3, 2, 0, 1),
    Sketcher.Constraint("Coincident", 4, 2, 5, 1),
    Sketcher.Constraint("Coincident", 5, 2, 6, 1),
    Sketcher.Constraint("Coincident", 6, 2, 7, 1),
    Sketcher.Constraint("Coincident", 7, 2, 4, 1),
    Sketcher.Constraint("Vertical", 0),
    Sketcher.Constraint("Horizontal", 1),
    Sketcher.Constraint("Vertical", 2),
    Sketcher.Constraint("Horizontal", 3),
    Sketcher.Constraint("Vertical", 4),
    Sketcher.Constraint("Horizontal", 5),
    Sketcher.Constraint("Vertical", 6),
    Sketcher.Constraint("Horizontal", 7),
    Sketcher.Constraint("Symmetric", 2, 2, 4, 2, -1, 1),
    Sketcher.Constraint("Symmetric", 0, 2, 6, 2, -1, 1),
    Sketcher.Constraint("Horizontal", 1, 2, 4, 2),
    Sketcher.Constraint("DistanceX", 1, 1, 1, 2, Q("131 mm")),
    Sketcher.Constraint("DistanceY", 0, 2, 0, 1, Q("30.5 mm")),
    Sketcher.Constraint("DistanceX", -1, 1, 0, 2, Q("220 mm")),
])
pocket19 = doc.addObject("PartDesign::Pocket", "Pocket018")
body.addObject(pocket19)
pocket19.Profile = sketch20
pocket19.Length = 16

sketch21 = doc.addObject("Sketcher::SketchObject", "Sketch020")
body.addObject(sketch21)
sketch21.AttachmentSupport = (doc.XZ_Plane, [""])
sketch21.MapMode = "FlatFace"
sketch21.addGeometry([
    Part.LineSegment(V(-238, -256, 0), V(-256, -238, 0)),
    Part.LineSegment(V(-256, -238, 0), V(-230, -212, 0)),
    Part.LineSegment(V(-230, -212, 0), V(-212, -230, 0)),
    Part.LineSegment(V(-212, -230, 0), V(-238, -256, 0)),
], False)
sketch21.addGeometry(Part.LineSegment(V(-212, -230, 0), V(-230, -212, 0)), True)
sketch21.addConstraint([
    Sketcher.Constraint("Coincident", 0, 2, 1, 1),
    Sketcher.Constraint("Coincident", 1, 2, 2, 1),
    Sketcher.Constraint("Coincident", 2, 2, 3, 1),
    Sketcher.Constraint("Coincident", 3, 2, 0, 1),
    Sketcher.Constraint("Coincident", 4, 1, 2, 2),
    Sketcher.Constraint("Coincident", 4, 2, 1, 2),
    Sketcher.Constraint("Perpendicular", 0, 1),
    Sketcher.Constraint("Perpendicular", 1, 2),
    Sketcher.Constraint("Perpendicular", 2, 3),
    Sketcher.Constraint("Angle", 0, Q("135 deg")),
    Sketcher.Constraint("Distance", 0, Q("25 mm")),
    Sketcher.Constraint("DistanceX", 0, 2, -1, 1, Q("255.51168 mm")),
    Sketcher.Constraint("DistanceY", 0, 2, -1, 1, Q("237.834011 mm")),
    Sketcher.Constraint("Distance", 1, Q("36.695566 mm")),
])
groove = doc.addObject("PartDesign::Groove", "Groove")
body.addObject(groove)
groove.Profile = sketch21
groove.ReferenceAxis = (sketch21, ["Axis0"])
groove.Angle = 5

sketch22 = doc.addObject("Sketcher::SketchObject", "Sketch021")
body.addObject(sketch22)
sketch22.AttachmentSupport = (doc.XZ_Plane, [""])
sketch22.MapMode = "FlatFace"
sketch22.addGeometry([
    Part.LineSegment(V(256, -238, 0), V(238, -256, 0)),
    Part.LineSegment(V(238, -256, 0), V(212, -230, 0)),
    Part.LineSegment(V(212, -230, 0), V(230, -212, 0)),
    Part.LineSegment(V(230, -212, 0), V(256, -238, 0)),
], False)
sketch22.addGeometry(Part.LineSegment(V(230, -212, 0), V(212, -230, 0)), True)
sketch22.addConstraint([
    Sketcher.Constraint("Coincident", 0, 2, 1, 1),
    Sketcher.Constraint("Coincident", 1, 2, 2, 1),
    Sketcher.Constraint("Coincident", 2, 2, 3, 1),
    Sketcher.Constraint("Coincident", 3, 2, 0, 1),
    Sketcher.Constraint("Coincident", 4, 1, 2, 2),
    Sketcher.Constraint("Coincident", 4, 2, 1, 2),
    Sketcher.Constraint("Perpendicular", 0, 1),
    Sketcher.Constraint("Perpendicular", 1, 2),
    Sketcher.Constraint("Perpendicular", 2, 3),
    Sketcher.Constraint("Angle", 0, Q("-135 deg")),
    Sketcher.Constraint("Distance", 0, Q("25 mm")),
    Sketcher.Constraint("DistanceX", -1, 1, 0, 2, Q("237.834011 mm")),
    Sketcher.Constraint("DistanceY", 0, 2, -1, 1, Q("255.51168 mm")),
    Sketcher.Constraint("Distance", 1, Q("36.695566 mm")),
])
groove2 = doc.addObject("PartDesign::Groove", "Groove001")
body.addObject(groove2)
groove2.Profile = sketch22
groove2.ReferenceAxis = (sketch22, ["Axis0"])
groove2.Angle = 5

sketch23 = doc.addObject("Sketcher::SketchObject", "Sketch022")
body.addObject(sketch23)
sketch23.AttachmentSupport = (doc.XZ_Plane, [""])
sketch23.MapMode = "FlatFace"
sketch23.addGeometry([
    Part.LineSegment(V(238, 256, 0), V(256, 238, 0)),
    Part.LineSegment(V(256, 238, 0), V(230, 212, 0)),
    Part.LineSegment(V(230, 212, 0), V(212, 230, 0)),
    Part.LineSegment(V(212, 230, 0), V(238, 256, 0)),
], False)
sketch23.addGeometry(Part.LineSegment(V(212, 230, 0), V(230, 212, 0)), True)
sketch23.addConstraint([
    Sketcher.Constraint("Coincident", 0, 2, 1, 1),
    Sketcher.Constraint("Coincident", 1, 2, 2, 1),
    Sketcher.Constraint("Coincident", 2, 2, 3, 1),
    Sketcher.Constraint("Coincident", 3, 2, 0, 1),
    Sketcher.Constraint("Coincident", 4, 1, 2, 2),
    Sketcher.Constraint("Coincident", 4, 2, 1, 2),
    Sketcher.Constraint("Perpendicular", 0, 1),
    Sketcher.Constraint("Perpendicular", 1, 2),
    Sketcher.Constraint("Perpendicular", 2, 3),
    Sketcher.Constraint("Angle", 0, Q("-45 deg")),
    Sketcher.Constraint("Distance", 0, Q("25 mm")),
    Sketcher.Constraint("DistanceX", -1, 1, 0, 2, Q("255.51168 mm")),
    Sketcher.Constraint("DistanceY", -1, 1, 0, 2, Q("237.834011 mm")),
    Sketcher.Constraint("Distance", 1, Q("36.695566 mm")),
])
groove3 = doc.addObject("PartDesign::Groove", "Groove002")
body.addObject(groove3)
groove3.Profile = sketch23
groove3.ReferenceAxis = (sketch23, ["Axis0"])
groove3.Angle = 5

sketch24 = doc.addObject("Sketcher::SketchObject", "Sketch023")
body.addObject(sketch24)
sketch24.AttachmentSupport = (doc.XZ_Plane, [""])
sketch24.MapMode = "FlatFace"
sketch24.addGeometry([
    Part.LineSegment(V(-256, 238, 0), V(-238, 256, 0)),
    Part.LineSegment(V(-238, 256, 0), V(-212, 230, 0)),
    Part.LineSegment(V(-212, 230, 0), V(-230, 212, 0)),
    Part.LineSegment(V(-230, 212, 0), V(-256, 238, 0)),
], False)
sketch24.addGeometry(Part.LineSegment(V(-230, 212, 0), V(-212, 230, 0)), True)
sketch24.addConstraint([
    Sketcher.Constraint("Coincident", 0, 2, 1, 1),
    Sketcher.Constraint("Coincident", 1, 2, 2, 1),
    Sketcher.Constraint("Coincident", 2, 2, 3, 1),
    Sketcher.Constraint("Coincident", 3, 2, 0, 1),
    Sketcher.Constraint("Coincident", 4, 1, 2, 2),
    Sketcher.Constraint("Coincident", 4, 2, 1, 2),
    Sketcher.Constraint("Perpendicular", 0, 1),
    Sketcher.Constraint("Perpendicular", 1, 2),
    Sketcher.Constraint("Perpendicular", 2, 3),
    Sketcher.Constraint("Angle", 0, Q("45 deg")),
    Sketcher.Constraint("Distance", 0, Q("25 mm")),
    Sketcher.Constraint("DistanceX", 0, 2, -1, 1, Q("237.834011 mm")),
    Sketcher.Constraint("DistanceY", -1, 1, 0, 2, Q("255.51168 mm")),
    Sketcher.Constraint("Distance", 1, Q("36.695566 mm")),
])
groove4 = doc.addObject("PartDesign::Groove", "Groove003")
body.addObject(groove4)
groove4.Profile = sketch24
groove4.ReferenceAxis = (sketch24, ["Axis0"])
groove4.Angle = 5

doc.recompute()
